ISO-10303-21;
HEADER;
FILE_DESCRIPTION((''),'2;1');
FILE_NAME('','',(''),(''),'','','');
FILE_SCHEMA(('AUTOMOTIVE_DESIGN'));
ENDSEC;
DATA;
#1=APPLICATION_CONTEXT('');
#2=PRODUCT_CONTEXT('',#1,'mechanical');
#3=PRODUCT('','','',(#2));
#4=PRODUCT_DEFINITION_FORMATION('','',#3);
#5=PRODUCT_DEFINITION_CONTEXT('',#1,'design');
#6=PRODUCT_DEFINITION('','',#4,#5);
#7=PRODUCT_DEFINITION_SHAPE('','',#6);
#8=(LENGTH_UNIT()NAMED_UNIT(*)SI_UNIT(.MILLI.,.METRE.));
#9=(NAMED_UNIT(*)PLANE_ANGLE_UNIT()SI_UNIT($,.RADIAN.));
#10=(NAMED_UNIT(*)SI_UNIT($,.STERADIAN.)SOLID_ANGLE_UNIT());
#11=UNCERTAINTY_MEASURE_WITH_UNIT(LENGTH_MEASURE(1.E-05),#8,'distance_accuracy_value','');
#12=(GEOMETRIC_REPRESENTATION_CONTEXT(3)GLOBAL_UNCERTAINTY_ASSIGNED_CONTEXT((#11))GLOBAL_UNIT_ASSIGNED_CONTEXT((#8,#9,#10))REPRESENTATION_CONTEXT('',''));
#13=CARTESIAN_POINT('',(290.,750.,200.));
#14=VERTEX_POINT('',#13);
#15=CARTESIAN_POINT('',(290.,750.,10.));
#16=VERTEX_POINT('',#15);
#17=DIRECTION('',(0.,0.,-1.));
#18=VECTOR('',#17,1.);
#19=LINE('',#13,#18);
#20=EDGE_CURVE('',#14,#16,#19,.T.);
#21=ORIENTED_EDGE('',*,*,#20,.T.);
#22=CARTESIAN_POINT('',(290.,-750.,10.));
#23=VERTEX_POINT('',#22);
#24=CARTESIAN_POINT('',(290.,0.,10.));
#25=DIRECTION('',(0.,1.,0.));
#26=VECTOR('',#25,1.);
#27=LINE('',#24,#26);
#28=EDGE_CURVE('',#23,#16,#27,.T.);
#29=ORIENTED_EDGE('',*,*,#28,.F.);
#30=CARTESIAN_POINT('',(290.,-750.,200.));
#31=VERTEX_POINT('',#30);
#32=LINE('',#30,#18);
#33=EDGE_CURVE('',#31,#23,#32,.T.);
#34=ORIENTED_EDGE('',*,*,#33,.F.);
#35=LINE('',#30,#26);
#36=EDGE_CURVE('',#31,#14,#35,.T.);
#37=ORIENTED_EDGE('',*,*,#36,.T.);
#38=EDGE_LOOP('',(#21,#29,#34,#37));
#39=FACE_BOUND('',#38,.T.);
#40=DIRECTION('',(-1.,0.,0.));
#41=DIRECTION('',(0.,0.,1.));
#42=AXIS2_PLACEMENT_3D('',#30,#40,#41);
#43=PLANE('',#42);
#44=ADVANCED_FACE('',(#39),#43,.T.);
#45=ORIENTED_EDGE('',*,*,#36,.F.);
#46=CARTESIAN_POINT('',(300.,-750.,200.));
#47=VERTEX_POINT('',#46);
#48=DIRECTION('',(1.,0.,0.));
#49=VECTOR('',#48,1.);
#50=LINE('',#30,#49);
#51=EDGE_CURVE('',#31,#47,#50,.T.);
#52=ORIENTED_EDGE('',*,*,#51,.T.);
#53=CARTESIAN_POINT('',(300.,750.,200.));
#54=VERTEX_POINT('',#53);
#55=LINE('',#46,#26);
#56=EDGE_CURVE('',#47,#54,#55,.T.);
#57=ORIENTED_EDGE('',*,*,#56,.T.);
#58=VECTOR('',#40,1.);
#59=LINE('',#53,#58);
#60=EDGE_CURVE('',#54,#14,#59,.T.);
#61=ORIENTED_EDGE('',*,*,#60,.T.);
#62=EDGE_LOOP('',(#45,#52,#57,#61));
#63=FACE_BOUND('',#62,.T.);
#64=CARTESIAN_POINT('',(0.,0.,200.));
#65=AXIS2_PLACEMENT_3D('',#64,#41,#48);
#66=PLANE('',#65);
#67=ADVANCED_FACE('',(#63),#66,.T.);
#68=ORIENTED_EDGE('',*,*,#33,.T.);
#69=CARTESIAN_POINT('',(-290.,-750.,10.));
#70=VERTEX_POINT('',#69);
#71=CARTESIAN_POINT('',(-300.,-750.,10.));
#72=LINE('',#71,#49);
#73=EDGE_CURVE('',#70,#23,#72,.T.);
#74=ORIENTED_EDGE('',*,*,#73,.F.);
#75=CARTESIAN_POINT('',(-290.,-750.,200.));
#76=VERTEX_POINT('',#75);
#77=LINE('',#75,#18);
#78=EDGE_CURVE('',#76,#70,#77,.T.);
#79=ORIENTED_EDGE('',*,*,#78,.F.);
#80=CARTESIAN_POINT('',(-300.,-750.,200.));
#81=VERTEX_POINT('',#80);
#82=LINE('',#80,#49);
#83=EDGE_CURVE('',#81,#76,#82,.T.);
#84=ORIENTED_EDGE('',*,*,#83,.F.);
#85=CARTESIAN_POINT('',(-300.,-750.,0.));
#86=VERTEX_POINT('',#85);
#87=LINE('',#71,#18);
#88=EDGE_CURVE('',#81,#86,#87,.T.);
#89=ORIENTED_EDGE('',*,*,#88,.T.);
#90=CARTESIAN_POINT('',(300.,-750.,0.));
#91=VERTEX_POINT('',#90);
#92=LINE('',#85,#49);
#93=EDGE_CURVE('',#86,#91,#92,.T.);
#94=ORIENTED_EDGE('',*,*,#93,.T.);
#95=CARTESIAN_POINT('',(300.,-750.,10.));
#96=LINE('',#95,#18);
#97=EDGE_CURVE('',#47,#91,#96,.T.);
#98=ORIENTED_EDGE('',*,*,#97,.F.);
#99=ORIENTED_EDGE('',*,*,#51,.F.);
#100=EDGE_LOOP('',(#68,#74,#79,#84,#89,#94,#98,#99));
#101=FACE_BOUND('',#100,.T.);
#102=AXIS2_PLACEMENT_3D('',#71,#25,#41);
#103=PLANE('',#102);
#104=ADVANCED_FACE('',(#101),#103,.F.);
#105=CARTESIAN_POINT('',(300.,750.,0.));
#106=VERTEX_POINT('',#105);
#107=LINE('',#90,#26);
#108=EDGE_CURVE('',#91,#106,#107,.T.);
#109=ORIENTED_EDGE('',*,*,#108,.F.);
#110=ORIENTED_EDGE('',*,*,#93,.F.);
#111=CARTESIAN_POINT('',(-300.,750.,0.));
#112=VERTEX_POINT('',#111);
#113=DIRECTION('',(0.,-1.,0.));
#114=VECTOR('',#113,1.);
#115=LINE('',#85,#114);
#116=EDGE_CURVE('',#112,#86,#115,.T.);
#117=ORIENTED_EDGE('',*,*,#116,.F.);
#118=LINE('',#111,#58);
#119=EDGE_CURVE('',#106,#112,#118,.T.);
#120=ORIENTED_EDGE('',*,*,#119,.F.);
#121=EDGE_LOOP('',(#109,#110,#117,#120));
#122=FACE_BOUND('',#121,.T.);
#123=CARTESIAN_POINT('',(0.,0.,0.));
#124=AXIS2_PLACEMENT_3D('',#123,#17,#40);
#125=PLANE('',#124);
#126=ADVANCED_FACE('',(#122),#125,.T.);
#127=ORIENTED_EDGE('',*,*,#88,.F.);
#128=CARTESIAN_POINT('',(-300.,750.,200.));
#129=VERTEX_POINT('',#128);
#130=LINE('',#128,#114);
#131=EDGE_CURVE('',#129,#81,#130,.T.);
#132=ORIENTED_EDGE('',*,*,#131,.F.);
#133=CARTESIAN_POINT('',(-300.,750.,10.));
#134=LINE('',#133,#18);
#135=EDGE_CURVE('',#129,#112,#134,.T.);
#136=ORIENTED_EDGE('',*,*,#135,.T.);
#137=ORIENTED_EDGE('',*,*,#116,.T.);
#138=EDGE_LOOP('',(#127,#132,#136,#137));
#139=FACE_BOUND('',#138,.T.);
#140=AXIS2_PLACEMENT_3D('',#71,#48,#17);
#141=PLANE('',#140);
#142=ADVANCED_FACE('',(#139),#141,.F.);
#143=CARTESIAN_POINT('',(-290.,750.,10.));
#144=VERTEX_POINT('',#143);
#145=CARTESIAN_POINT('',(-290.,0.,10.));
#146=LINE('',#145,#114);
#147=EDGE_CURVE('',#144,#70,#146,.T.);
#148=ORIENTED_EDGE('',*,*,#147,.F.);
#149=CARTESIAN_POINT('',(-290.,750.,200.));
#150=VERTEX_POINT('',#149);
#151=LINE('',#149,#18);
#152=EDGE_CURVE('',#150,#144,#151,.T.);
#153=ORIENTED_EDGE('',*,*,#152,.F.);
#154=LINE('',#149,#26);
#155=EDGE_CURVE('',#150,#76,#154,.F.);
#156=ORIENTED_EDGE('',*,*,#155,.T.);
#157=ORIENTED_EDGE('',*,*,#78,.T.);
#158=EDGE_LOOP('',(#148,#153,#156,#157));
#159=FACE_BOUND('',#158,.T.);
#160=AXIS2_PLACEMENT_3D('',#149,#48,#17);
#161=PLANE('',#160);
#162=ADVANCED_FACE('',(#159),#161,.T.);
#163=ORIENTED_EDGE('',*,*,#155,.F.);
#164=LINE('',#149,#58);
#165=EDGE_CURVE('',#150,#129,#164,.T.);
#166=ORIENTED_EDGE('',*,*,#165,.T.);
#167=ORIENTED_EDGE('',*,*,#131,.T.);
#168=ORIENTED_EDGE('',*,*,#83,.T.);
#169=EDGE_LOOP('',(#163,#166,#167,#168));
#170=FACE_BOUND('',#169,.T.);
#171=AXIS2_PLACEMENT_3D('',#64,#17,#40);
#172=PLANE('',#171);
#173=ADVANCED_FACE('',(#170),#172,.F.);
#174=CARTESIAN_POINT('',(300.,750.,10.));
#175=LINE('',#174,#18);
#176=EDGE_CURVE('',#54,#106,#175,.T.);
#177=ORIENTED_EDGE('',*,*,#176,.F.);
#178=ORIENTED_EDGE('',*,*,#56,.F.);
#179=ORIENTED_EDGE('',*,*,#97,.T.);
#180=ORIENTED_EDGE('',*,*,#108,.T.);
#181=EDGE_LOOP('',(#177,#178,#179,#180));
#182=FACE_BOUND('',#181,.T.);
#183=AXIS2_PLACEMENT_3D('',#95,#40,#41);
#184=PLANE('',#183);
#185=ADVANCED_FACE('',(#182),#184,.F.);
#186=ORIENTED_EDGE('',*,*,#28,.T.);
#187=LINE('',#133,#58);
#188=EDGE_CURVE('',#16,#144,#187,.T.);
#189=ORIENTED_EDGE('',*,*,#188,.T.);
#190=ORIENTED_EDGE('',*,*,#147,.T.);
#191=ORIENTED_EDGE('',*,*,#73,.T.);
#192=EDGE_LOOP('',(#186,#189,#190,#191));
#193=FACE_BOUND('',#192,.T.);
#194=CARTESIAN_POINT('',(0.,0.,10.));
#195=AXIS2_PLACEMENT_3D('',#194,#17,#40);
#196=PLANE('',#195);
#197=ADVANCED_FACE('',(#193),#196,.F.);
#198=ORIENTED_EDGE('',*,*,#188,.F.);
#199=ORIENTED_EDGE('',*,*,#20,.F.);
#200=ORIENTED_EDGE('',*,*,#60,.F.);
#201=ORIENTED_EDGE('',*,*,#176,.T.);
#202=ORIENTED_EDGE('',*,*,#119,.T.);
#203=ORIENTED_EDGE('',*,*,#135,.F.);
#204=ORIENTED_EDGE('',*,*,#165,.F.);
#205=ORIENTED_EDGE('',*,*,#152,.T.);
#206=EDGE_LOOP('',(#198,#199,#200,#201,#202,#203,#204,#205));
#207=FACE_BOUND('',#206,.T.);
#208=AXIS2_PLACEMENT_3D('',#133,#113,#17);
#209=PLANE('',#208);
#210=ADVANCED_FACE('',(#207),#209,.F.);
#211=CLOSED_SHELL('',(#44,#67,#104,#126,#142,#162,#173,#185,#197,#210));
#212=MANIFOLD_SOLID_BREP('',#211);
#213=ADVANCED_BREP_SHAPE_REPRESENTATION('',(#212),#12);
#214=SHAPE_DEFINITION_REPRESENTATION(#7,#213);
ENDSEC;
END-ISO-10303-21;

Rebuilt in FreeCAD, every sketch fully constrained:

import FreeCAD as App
import Part
import Sketcher
from FreeCAD import Vector
Q = App.Units.Quantity

doc = App.newDocument("Part")
body = doc.addObject("PartDesign::Body", "Body")

sketch1 = doc.addObject("Sketcher::SketchObject", "Sketch")
body.addObject(sketch1)
sketch1.AttachmentSupport = (doc.XY_Plane, [""])
sketch1.MapMode = "FlatFace"
sketch1.addGeometry([
    Part.LineSegment(Vector(-300, 750, 0), Vector(-300, -750, 0)),
    Part.LineSegment(Vector(-300, -750, 0), Vector(300, -750, 0)),
    Part.LineSegment(Vector(300, -750, 0), Vector(300, 750, 0)),
    Part.LineSegment(Vector(300, 750, 0), Vector(-300, 750, 0)),
], False)
sketch1.addConstraint([
    Sketcher.Constraint("Coincident", 0, 2, 1, 1),
    Sketcher.Constraint("Coincident", 1, 2, 2, 1),
    Sketcher.Constraint("Coincident", 2, 2, 3, 1),
    Sketcher.Constraint("Coincident", 3, 2, 0, 1),
    Sketcher.Constraint("Vertical", 0),
    Sketcher.Constraint("Horizontal", 1),
    Sketcher.Constraint("Vertical", 2),
    Sketcher.Constraint("Horizontal", 3),
    Sketcher.Constraint("Symmetric", 0, 2, 2, 2, -1, 1),
    Sketcher.Constraint("DistanceX", 1, 1, 1, 2, Q("600 mm")),
    Sketcher.Constraint("DistanceY", 0, 2, 0, 1, Q("1500 mm")),
])
pad1 = doc.addObject("PartDesign::Pad", "Pad")
body.addObject(pad1)
pad1.Profile = sketch1
pad1.Length = 10

sketch2 = doc.addObject("Sketcher::SketchObject", "Sketch001")
body.addObject(sketch2)
sketch2.AttachmentSupport = (doc.XY_Plane, [""])
sketch2.MapMode = "FlatFace"
sketch2.addGeometry([
    Part.LineSegment(Vector(300, 750, 0), Vector(300, -750, 0)),
    Part.LineSegment(Vector(300, -750, 0), Vector(290, -750, 0)),
    Part.LineSegment(Vector(290, -750, 0), Vector(290, 750, 0)),
    Part.LineSegment(Vector(290, 750, 0), Vector(300, 750, 0)),
    Part.LineSegment(Vector(-290, 750, 0), Vector(-290, -750, 0)),
    Part.LineSegment(Vector(-290, -750, 0), Vector(-300, -750, 0)),
    Part.LineSegment(Vector(-300, -750, 0), Vector(-300, 750, 0)),
    Part.LineSegment(Vector(-300, 750, 0), Vector(-290, 750, 0)),
], False)
sketch2.addConstraint([
    Sketcher.Constraint("Coincident", 0, 2, 1, 1),
    Sketcher.Constraint("Coincident", 1, 2, 2, 1),
    Sketcher.Constraint("Coincident", 2, 2, 3, 1),
    Sketcher.Constraint("Coincident", 3, 2, 0, 1),
    Sketcher.Constraint("Coincident", 4, 2, 5, 1),
    Sketcher.Constraint("Coincident", 5, 2, 6, 1),
    Sketcher.Constraint("Coincident", 6, 2, 7, 1),
    Sketcher.Constraint("Coincident", 7, 2, 4, 1),
    Sketcher.Constraint("Vertical", 0),
    Sketcher.Constraint("Horizontal", 1),
    Sketcher.Constraint("Vertical", 2),
    Sketcher.Constraint("Horizontal", 3),
    Sketcher.Constraint("Vertical", 4),
    Sketcher.Constraint("Horizontal", 5),
    Sketcher.Constraint("Vertical", 6),
    Sketcher.Constraint("Horizontal", 7),
    Sketcher.Constraint("Symmetric", 2, 2, 4, 2, -1, 1),
    Sketcher.Constraint("Symmetric", 0, 2, 6, 2, -1, 1),
    Sketcher.Constraint("Horizontal", 1, 2, 4, 2),
    Sketcher.Constraint("DistanceX", 1, 2, 1, 1, Q("10 mm")),
    Sketcher.Constraint("DistanceY", 0, 2, 0, 1, Q("1500 mm")),
    Sketcher.Constraint("DistanceX", -1, 1, 0, 2, Q("300 mm")),
])
pad2 = doc.addObject("PartDesign::Pad", "Pad001")
body.addObject(pad2)
pad2.Profile = sketch2
pad2.Length = 200

doc.recompute()
